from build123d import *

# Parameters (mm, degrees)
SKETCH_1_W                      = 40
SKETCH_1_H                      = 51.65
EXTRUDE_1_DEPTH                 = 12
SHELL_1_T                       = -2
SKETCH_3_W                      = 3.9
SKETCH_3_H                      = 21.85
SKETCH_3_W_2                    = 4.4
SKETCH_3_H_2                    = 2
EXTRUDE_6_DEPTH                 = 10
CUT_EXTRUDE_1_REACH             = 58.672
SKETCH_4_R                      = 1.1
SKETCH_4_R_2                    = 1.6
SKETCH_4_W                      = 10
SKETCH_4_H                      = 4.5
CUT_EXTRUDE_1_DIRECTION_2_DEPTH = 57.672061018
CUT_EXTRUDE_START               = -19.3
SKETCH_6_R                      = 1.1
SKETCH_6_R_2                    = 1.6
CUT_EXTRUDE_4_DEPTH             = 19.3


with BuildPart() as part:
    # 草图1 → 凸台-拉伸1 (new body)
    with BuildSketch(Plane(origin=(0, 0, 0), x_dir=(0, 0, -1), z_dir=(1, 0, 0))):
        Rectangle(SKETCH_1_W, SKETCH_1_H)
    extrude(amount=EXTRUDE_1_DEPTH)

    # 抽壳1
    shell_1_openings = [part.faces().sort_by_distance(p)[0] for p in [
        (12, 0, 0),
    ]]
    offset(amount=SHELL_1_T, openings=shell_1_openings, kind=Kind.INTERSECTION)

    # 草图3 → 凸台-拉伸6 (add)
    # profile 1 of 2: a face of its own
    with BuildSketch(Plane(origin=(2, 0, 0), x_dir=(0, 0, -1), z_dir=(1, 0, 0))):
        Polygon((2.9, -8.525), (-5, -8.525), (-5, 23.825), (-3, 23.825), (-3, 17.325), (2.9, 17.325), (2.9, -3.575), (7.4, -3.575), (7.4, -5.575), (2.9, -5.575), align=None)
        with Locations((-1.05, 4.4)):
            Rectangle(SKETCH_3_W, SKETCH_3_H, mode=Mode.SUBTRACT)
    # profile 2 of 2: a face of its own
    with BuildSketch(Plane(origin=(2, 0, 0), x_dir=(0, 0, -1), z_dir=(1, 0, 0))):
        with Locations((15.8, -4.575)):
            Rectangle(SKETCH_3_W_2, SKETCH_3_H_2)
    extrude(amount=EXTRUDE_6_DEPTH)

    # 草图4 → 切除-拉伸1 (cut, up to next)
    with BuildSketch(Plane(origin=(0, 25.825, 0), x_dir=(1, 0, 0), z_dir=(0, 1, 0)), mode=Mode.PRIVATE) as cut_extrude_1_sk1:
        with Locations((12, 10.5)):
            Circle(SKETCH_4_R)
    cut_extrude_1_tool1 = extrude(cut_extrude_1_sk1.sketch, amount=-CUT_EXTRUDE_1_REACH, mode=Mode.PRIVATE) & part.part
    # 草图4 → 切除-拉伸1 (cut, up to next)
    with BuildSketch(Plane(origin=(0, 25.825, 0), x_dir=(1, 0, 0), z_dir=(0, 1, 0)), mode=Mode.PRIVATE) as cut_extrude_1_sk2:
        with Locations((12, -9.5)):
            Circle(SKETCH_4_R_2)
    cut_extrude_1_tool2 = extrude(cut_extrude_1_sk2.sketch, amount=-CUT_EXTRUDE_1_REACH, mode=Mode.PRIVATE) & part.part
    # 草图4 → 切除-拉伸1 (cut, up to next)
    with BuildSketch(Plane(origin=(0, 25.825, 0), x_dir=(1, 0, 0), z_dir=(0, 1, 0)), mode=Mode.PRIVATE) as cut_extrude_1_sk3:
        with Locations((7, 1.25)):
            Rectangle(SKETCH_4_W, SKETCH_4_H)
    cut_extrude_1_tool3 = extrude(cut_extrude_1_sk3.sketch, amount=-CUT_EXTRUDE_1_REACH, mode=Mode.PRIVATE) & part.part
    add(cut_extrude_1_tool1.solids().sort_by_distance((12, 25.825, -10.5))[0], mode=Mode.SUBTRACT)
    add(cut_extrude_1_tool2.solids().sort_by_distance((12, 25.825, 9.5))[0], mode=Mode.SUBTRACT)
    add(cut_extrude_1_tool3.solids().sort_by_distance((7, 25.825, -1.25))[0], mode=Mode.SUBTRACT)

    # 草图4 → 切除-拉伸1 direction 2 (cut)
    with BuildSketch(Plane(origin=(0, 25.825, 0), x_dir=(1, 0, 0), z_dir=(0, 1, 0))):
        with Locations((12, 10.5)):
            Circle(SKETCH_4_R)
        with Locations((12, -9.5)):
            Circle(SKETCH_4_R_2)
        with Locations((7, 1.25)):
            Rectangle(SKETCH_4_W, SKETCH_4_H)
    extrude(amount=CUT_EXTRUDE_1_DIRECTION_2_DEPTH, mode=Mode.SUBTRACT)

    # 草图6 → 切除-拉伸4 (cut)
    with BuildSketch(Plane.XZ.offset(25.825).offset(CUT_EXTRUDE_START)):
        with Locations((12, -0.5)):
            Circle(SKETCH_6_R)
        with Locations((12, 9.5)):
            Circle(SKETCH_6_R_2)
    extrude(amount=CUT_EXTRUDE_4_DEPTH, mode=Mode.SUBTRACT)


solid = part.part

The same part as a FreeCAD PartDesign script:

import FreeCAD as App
import Part
import Sketcher

V = App.Vector
Q = App.Units.Quantity


def faces_at(feature, points):
    """Names of the faces that lie closest to the given points."""
    faces = feature.Shape.Faces
    near = lambda p: min(range(len(faces)), key=lambda i: faces[i].distToShape(Part.Vertex(*p))[0])
    return sorted({f"Face{near(p) + 1}" for p in points})

doc = App.newDocument("Part")
body = doc.addObject("PartDesign::Body", "Body")

# Sketch on YZ plane
sketch1 = body.newObject("Sketcher::SketchObject", "Sketch")
sketch1.AttachmentSupport = (doc.getObject("YZ_Plane"), [""])
sketch1.MapMode = "FlatFace"
sketch1.addGeometry([
    Part.LineSegment(V(26, 20, 0), V(-26, 20, 0)),
    Part.LineSegment(V(-26, 20, 0), V(-26, -20, 0)),
    Part.LineSegment(V(-26, -20, 0), V(26, -20, 0)),
    Part.LineSegment(V(26, -20, 0), V(26, 20, 0)),
], False)
sketch1.addConstraint([
    Sketcher.Constraint("Coincident", 0, 2, 1, 1),
    Sketcher.Constraint("Coincident", 1, 2, 2, 1),
    Sketcher.Constraint("Coincident", 2, 2, 3, 1),
    Sketcher.Constraint("Coincident", 3, 2, 0, 1),
    Sketcher.Constraint("Horizontal", 0),
    Sketcher.Constraint("Vertical", 1),
    Sketcher.Constraint("Horizontal", 2),
    Sketcher.Constraint("Vertical", 3),
    Sketcher.Constraint("Symmetric", 0, 2, 2, 2, -1, 1),
    Sketcher.Constraint("DistanceY", 1, 2, 1, 1, Q("40 mm")),
    Sketcher.Constraint("DistanceX", 0, 2, 0, 1, Q("51.65 mm")),
])
pad1 = body.newObject("PartDesign::Pad", "Pad")
pad1.Profile = sketch1
pad1.Length = 12
doc.recompute()

thickness = body.newObject("PartDesign::Thickness", "Thickness")
thickness.Base = (pad1, faces_at(pad1, [(12, 0, 0)]))
thickness.Value = 2
thickness.Reversed = True
thickness.Join = "Intersection"

# Sketch on YZ plane
sketch2 = body.newObject("Sketcher::SketchObject", "Sketch001")
sketch2.AttachmentSupport = (doc.getObject("YZ_Plane"), [""])
sketch2.MapMode = "FlatFace"
sketch2.AttachmentOffset = App.Placement(V(0, 0, 2), App.Rotation())
sketch2.addGeometry([
    Part.LineSegment(V(-8.5, 5, 0), V(-8.5, -2.9, 0)),  # 0
    Part.LineSegment(V(-8.5, -2.9, 0), V(-5.6, -2.9, 0)),  # 1
    Part.LineSegment(V(-5.6, -2.9, 0), V(-5.6, -7.4, 0)),  # 2
    Part.LineSegment(V(-5.6, -7.4, 0), V(-3.6, -7.4, 0)),  # 3
    Part.LineSegment(V(-3.6, -7.4, 0), V(-3.6, -2.9, 0)),  # 4
    Part.LineSegment(V(-3.6, -2.9, 0), V(17.3, -2.9, 0)),  # 5
    Part.LineSegment(V(17.3, -2.9, 0), V(17.3, 3, 0)),  # 6
    Part.LineSegment(V(17.3, 3, 0), V(23.8, 3, 0)),  # 7
    Part.LineSegment(V(23.8, 3, 0), V(23.8, 5, 0)),  # 8
    Part.LineSegment(V(23.8, 5, 0), V(-8.5, 5, 0)),  # 9
    Part.LineSegment(V(-6.5, 3, 0), V(15.3, 3, 0)),  # 10
    Part.LineSegment(V(15.3, 3, 0), V(15.3, -0.9, 0)),  # 11
    Part.LineSegment(V(15.3, -0.9, 0), V(-6.5, -0.9, 0)),  # 12
    Part.LineSegment(V(-6.5, -0.9, 0), V(-6.5, 3, 0)),  # 13
    Part.LineSegment(V(-3.6, -13.6, 0), V(-5.6, -13.6, 0)),  # 14
    Part.LineSegment(V(-5.6, -13.6, 0), V(-5.6, -18, 0)),  # 15
    Part.LineSegment(V(-5.6, -18, 0), V(-3.6, -18, 0)),  # 16
    Part.LineSegment(V(-3.6, -18, 0), V(-3.6, -13.6, 0)),  # 17
], False)
sketch2.addConstraint([
    Sketcher.Constraint("Coincident", 0, 2, 1, 1),
    Sketcher.Constraint("Coincident", 1, 2, 2, 1),
    Sketcher.Constraint("Coincident", 2, 2, 3, 1),
    Sketcher.Constraint("Coincident", 3, 2, 4, 1),
    Sketcher.Constraint("Coincident", 4, 2, 5, 1),
    Sketcher.Constraint("Coincident", 5, 2, 6, 1),
    Sketcher.Constraint("Coincident", 6, 2, 7, 1),
    Sketcher.Constraint("Coincident", 7, 2, 8, 1),
    Sketcher.Constraint("Coincident", 8, 2, 9, 1),
    Sketcher.Constraint("Coincident", 9, 2, 0, 1),
    Sketcher.Constraint("Coincident", 10, 2, 11, 1),
    Sketcher.Constraint("Coincident", 11, 2, 12, 1),
    Sketcher.Constraint("Coincident", 12, 2, 13, 1),
    Sketcher.Constraint("Coincident", 13, 2, 10, 1),
    Sketcher.Constraint("Coincident", 14, 2, 15, 1),
    Sketcher.Constraint("Coincident", 15, 2, 16, 1),
    Sketcher.Constraint("Coincident", 16, 2, 17, 1),
    Sketcher.Constraint("Coincident", 17, 2, 14, 1),
    Sketcher.Constraint("Vertical", 0),
    Sketcher.Constraint("Horizontal", 1),
    Sketcher.Constraint("Vertical", 2),
    Sketcher.Constraint("Horizontal", 3),
    Sketcher.Constraint("Vertical", 4),
    Sketcher.Constraint("Horizontal", 5),
    Sketcher.Constraint("Vertical", 6),
    Sketcher.Constraint("Horizontal", 7),
    Sketcher.Constraint("Vertical", 8),
    Sketcher.Constraint("Horizontal", 9),
    Sketcher.Constraint("Horizontal", 10),
    Sketcher.Constraint("Vertical", 11),
    Sketcher.Constraint("Horizontal", 12),
    Sketcher.Constraint("Vertical", 13),
    Sketcher.Constraint("Horizontal", 14),
    Sketcher.Constraint("Vertical", 15),
    Sketcher.Constraint("Horizontal", 16),
    Sketcher.Constraint("Vertical", 17),
    Sketcher.Constraint("Horizontal", 1, 2, 4, 2),
    Sketcher.Constraint("Horizontal", 7, 2, 10, 2),
    Sketcher.Constraint("Vertical", 2, 2, 14, 2),
    Sketcher.Constraint("Vertical", 4, 2, 16, 2),
    Sketcher.Constraint("Equal", 16, 8),
    Sketcher.Constraint("DistanceX", 3, 1, 3, 2, Q("2 mm")),
    Sketcher.Constraint("DistanceX", 5, 1, 5, 2, Q("20.9 mm")),
    Sketcher.Constraint("DistanceX", 7, 1, 7, 2, Q("6.5 mm")),
    Sketcher.Constraint("DistanceY", 0, 2, 0, 1, Q("7.9 mm")),
    Sketcher.Constraint("DistanceY", 2, 2, 2, 1, Q("4.5 mm")),
    Sketcher.Constraint("DistanceY", 11, 2, 11, 1, Q("3.9 mm")),
    Sketcher.Constraint("DistanceY", 15, 2, 15, 1, Q("4.4 mm")),
    Sketcher.Constraint("DistanceY", -1, 1, 6, 2, Q("3 mm")),
    Sketcher.Constraint("DistanceY", 15, 2, -1, 1, Q("18 mm")),
    Sketcher.Constraint("DistanceX", 10, 2, 6, 2, Q("2 mm")),
    Sketcher.Constraint("DistanceX", 0, 2, 12, 2, Q("2 mm")),
    Sketcher.Constraint("DistanceX", 1, 1, 1, 2, Q("2.95 mm")),
    Sketcher.Constraint("DistanceX", 0, 2, -1, 1, Q("8.525 mm")),
])
pad2 = body.newObject("PartDesign::Pad", "Pad001")
pad2.Profile = sketch2
pad2.Length = 10

# Sketch on XZ plane
sketch3 = body.newObject("Sketcher::SketchObject", "Sketch002")
sketch3.AttachmentSupport = (doc.getObject("XZ_Plane"), [""])
sketch3.MapMode = "FlatFace"
sketch3.AttachmentOffset = App.Placement(V(0, 0, -25.825), App.Rotation())
sketch3.addGeometry(Part.Circle(V(12, -10.5, 0), V(0, 0, 1), 1.1), False)
sketch3.addConstraint([
    Sketcher.Constraint("Diameter", 0, Q("2.2 mm")),
    Sketcher.Constraint("DistanceX", -1, 1, 0, 3, Q("12 mm")),
    Sketcher.Constraint("DistanceY", 0, 3, -1, 1, Q("10.5 mm")),
])
pocket1 = body.newObject("PartDesign::Pocket", "Pocket")
pocket1.Profile = sketch3
pocket1.Type = "UpToFirst"
pocket1.Reversed = True

# Sketch on XZ plane
sketch4 = body.newObject("Sketcher::SketchObject", "Sketch003")
sketch4.AttachmentSupport = (doc.getObject("XZ_Plane"), [""])
sketch4.MapMode = "FlatFace"
sketch4.AttachmentOffset = App.Placement(V(0, 0, -25.825), App.Rotation())
sketch4.addGeometry(Part.Circle(V(12, 9.5, 0), V(0, 0, 1), 1.6), False)
sketch4.addConstraint([
    Sketcher.Constraint("Diameter", 0, Q("3.2 mm")),
    Sketcher.Constraint("DistanceX", -1, 1, 0, 3, Q("12 mm")),
    Sketcher.Constraint("DistanceY", -1, 1, 0, 3, Q("9.5 mm")),
])
pocket2 = body.newObject("PartDesign::Pocket", "Pocket001")
pocket2.Profile = sketch4
pocket2.Type = "UpToFirst"
pocket2.Reversed = True

# Sketch on XZ plane
sketch5 = body.newObject("Sketcher::SketchObject", "Sketch004")
sketch5.AttachmentSupport = (doc.getObject("XZ_Plane"), [""])
sketch5.MapMode = "FlatFace"
sketch5.AttachmentOffset = App.Placement(V(0, 0, -25.825), App.Rotation())
sketch5.addGeometry([
    Part.LineSegment(V(2, -3.5, 0), V(2, 1, 0)),
    Part.LineSegment(V(2, 1, 0), V(12, 1, 0)),
    Part.LineSegment(V(12, 1, 0), V(12, -3.5, 0)),
    Part.LineSegment(V(12, -3.5, 0), V(2, -3.5, 0)),
], False)
sketch5.addConstraint([
    Sketcher.Constraint("Coincident", 0, 2, 1, 1),
    Sketcher.Constraint("Coincident", 1, 2, 2, 1),
    Sketcher.Constraint("Coincident", 2, 2, 3, 1),
    Sketcher.Constraint("Coincident", 3, 2, 0, 1),
    Sketcher.Constraint("Vertical", 0),
    Sketcher.Constraint("Horizontal", 1),
    Sketcher.Constraint("Vertical", 2),
    Sketcher.Constraint("Horizontal", 3),
    Sketcher.Constraint("DistanceX", 1, 1, 1, 2, Q("10 mm")),
    Sketcher.Constraint("DistanceY", 0, 1, 0, 2, Q("4.5 mm")),
    Sketcher.Constraint("DistanceX", -1, 1, 0, 2, Q("2 mm")),
    Sketcher.Constraint("DistanceY", -1, 1, 0, 2, Q("1 mm")),
])
pocket3 = body.newObject("PartDesign::Pocket", "Pocket002")
pocket3.Profile = sketch5
pocket3.Type = "UpToFirst"
pocket3.Reversed = True

# Sketch on XZ plane
sketch6 = body.newObject("Sketcher::SketchObject", "Sketch005")
sketch6.AttachmentSupport = (doc.getObject("XZ_Plane"), [""])
sketch6.MapMode = "FlatFace"
sketch6.AttachmentOffset = App.Placement(V(0, 0, -25.825), App.Rotation())
sketch6.addGeometry([
    Part.Circle(V(12, -10.5, 0), V(0, 0, 1), 1.1),  # 0
    Part.Circle(V(12, 9.5, 0), V(0, 0, 1), 1.6),  # 1
    Part.LineSegment(V(2, -3.5, 0), V(2, 1, 0)),  # 2
    Part.LineSegment(V(2, 1, 0), V(12, 1, 0)),  # 3
    Part.LineSegment(V(12, 1, 0), V(12, -3.5, 0)),  # 4
    Part.LineSegment(V(12, -3.5, 0), V(2, -3.5, 0)),  # 5
], False)
sketch6.addConstraint([
    Sketcher.Constraint("Coincident", 2, 2, 3, 1),
    Sketcher.Constraint("Coincident", 3, 2, 4, 1),
    Sketcher.Constraint("Coincident", 4, 2, 5, 1),
    Sketcher.Constraint("Coincident", 5, 2, 2, 1),
    Sketcher.Constraint("Vertical", 2),
    Sketcher.Constraint("Horizontal", 3),
    Sketcher.Constraint("Vertical", 4),
    Sketcher.Constraint("Horizontal", 5),
    Sketcher.Constraint("Vertical", 0, 3, 1, 3),
    Sketcher.Constraint("Vertical", 1, 3, 3, 2),
    Sketcher.Constraint("Diameter", 0, Q("2.2 mm")),
    Sketcher.Constraint("Diameter", 1, Q("3.2 mm")),
    Sketcher.Constraint("DistanceX", 3, 1, 3, 2, Q("10 mm")),
    Sketcher.Constraint("DistanceY", 2, 1, 2, 2, Q("4.5 mm")),
    Sketcher.Constraint("DistanceX", -1, 1, 0, 3, Q("12 mm")),
    Sketcher.Constraint("DistanceY", -1, 1, 2, 2, Q("1 mm")),
    Sketcher.Constraint("DistanceY", 0, 3, 1, 3, Q("20 mm")),
    Sketcher.Constraint("DistanceY", 0, 3, 4, 2, Q("7 mm")),
])
pocket4 = body.newObject("PartDesign::Pocket", "Pocket003")
pocket4.Profile = sketch6
pocket4.Length = 57.672061

# Sketch on XZ plane
sketch7 = body.newObject("Sketcher::SketchObject", "Sketch006")
sketch7.AttachmentSupport = (doc.getObject("XZ_Plane"), [""])
sketch7.MapMode = "FlatFace"
sketch7.AttachmentOffset = App.Placement(V(0, 0, 6.525), App.Rotation())
sketch7.addGeometry([
    Part.Circle(V(12, -0.5, 0), V(0, 0, 1), 1.1),
    Part.Circle(V(12, 9.5, 0), V(0, 0, 1), 1.6),
], False)
sketch7.addConstraint([
    Sketcher.Constraint("Vertical", 0, 3, 1, 3),
    Sketcher.Constraint("Diameter", 0, Q("2.2 mm")),
    Sketcher.Constraint("Diameter", 1, Q("3.2 mm")),
    Sketcher.Constraint("DistanceX", -1, 1, 0, 3, Q("12 mm")),
    Sketcher.Constraint("DistanceY", 0, 3, 1, 3, Q("10 mm")),
    Sketcher.Constraint("DistanceY", 0, 3, -1, 1, Q("0.5 mm")),
])
pocket5 = body.newObject("PartDesign::Pocket", "Pocket004")
pocket5.Profile = sketch7
pocket5.Length = 19.3
pocket5.Reversed = True

doc.recompute()
